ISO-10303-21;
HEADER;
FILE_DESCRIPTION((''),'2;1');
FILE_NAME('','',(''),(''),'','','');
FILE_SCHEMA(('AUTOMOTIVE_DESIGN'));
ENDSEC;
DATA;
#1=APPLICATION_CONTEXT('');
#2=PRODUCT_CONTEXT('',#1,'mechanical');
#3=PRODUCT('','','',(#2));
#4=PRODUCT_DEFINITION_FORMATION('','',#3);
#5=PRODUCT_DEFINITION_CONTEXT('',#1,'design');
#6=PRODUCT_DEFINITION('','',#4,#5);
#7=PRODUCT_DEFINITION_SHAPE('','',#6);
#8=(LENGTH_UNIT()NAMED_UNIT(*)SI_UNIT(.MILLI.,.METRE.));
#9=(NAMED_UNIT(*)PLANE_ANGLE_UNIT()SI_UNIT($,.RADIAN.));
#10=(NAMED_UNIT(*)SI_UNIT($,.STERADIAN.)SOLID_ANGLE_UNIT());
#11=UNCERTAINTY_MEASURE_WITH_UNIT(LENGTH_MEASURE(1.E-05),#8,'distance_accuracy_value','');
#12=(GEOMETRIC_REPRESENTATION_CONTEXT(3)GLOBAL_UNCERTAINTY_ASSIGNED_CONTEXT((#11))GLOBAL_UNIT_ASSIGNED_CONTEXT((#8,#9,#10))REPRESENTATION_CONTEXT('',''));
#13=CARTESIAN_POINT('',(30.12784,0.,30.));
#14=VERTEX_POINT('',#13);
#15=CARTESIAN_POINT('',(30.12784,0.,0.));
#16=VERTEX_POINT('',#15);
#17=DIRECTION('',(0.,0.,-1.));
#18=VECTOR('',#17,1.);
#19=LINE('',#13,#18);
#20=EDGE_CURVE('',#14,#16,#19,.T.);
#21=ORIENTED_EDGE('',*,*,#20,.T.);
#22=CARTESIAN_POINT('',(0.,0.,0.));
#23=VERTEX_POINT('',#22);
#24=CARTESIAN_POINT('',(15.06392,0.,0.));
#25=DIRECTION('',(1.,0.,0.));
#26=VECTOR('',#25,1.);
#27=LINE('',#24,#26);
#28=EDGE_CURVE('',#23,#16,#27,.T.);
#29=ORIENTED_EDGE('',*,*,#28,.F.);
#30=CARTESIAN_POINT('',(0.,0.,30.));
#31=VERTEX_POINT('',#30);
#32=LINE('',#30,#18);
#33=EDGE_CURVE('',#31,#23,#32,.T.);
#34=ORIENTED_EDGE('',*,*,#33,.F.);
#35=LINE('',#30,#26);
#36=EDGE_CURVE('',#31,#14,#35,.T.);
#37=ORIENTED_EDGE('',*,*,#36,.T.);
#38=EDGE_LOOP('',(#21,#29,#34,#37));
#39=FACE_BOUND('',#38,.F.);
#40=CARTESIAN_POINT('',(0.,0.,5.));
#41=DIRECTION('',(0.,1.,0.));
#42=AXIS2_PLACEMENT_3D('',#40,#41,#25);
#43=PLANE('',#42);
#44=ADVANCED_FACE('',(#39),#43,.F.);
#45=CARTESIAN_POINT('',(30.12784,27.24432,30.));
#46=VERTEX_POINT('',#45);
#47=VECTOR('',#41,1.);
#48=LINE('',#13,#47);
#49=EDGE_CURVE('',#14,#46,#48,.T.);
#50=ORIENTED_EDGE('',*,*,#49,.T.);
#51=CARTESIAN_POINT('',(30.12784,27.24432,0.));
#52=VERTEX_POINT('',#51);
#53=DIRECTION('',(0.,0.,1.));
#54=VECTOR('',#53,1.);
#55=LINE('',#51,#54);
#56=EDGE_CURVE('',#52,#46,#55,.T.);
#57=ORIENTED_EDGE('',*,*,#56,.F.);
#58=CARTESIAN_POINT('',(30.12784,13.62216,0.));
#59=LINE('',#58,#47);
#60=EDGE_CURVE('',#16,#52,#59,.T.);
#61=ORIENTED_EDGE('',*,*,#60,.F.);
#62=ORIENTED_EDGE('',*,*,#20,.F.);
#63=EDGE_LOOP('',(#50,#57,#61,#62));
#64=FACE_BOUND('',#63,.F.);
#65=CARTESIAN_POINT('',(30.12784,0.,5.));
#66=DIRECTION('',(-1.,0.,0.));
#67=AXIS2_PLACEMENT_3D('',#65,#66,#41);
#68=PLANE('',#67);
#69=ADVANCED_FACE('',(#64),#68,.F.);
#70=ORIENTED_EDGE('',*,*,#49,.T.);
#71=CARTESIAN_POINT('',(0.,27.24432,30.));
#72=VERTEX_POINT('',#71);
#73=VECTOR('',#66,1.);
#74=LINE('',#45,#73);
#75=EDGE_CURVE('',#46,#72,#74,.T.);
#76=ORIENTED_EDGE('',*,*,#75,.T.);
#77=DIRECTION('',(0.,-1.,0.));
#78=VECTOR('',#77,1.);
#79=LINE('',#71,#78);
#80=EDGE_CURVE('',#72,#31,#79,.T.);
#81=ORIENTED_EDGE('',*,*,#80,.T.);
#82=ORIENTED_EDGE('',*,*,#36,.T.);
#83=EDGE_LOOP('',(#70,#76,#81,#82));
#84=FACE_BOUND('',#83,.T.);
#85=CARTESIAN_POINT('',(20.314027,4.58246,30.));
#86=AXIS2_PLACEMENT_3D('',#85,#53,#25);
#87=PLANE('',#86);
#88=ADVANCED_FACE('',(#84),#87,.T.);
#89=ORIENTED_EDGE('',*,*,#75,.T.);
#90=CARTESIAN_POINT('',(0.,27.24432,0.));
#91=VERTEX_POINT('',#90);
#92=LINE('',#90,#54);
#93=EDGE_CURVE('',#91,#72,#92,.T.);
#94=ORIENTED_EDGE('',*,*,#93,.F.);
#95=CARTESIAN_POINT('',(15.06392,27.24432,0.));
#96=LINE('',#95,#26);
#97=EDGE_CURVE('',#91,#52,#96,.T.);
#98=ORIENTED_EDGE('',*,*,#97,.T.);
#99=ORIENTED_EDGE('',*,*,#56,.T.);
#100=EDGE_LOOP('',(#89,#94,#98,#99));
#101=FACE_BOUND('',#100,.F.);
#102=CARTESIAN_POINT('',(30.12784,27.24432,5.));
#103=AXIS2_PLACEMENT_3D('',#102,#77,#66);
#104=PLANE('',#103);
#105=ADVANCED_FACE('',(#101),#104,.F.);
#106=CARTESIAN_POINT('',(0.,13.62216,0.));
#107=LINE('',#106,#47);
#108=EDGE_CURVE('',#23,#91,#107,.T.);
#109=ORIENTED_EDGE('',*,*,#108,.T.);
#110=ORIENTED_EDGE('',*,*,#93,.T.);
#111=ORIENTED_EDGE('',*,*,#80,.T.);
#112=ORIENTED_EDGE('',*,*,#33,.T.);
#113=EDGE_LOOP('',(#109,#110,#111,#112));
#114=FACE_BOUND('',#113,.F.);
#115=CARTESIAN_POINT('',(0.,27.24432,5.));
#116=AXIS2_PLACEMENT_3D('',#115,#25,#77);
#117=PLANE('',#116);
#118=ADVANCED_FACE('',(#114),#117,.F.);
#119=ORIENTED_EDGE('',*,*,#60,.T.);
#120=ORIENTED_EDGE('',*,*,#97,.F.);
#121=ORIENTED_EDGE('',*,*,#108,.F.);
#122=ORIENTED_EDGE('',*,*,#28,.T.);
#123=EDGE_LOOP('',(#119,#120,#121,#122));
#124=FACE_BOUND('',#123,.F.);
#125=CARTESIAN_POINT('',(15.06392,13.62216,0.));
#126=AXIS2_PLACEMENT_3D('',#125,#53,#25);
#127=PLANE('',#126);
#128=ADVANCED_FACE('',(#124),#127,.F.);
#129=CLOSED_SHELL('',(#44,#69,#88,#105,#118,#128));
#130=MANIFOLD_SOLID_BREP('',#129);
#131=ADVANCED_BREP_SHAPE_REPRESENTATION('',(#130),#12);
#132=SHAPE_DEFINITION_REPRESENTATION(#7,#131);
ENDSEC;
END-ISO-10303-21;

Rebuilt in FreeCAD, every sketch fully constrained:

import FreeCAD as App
import Part
import Sketcher
from FreeCAD import Vector


def add_polygon(sketch, points):
    """Adds a closed chain of lines whose ends are joined by coincident constraints."""
    first, n = sketch.GeometryCount, len(points)
    for a, b in zip(points, points[1:] + points[:1]):
        sketch.addGeometry(Part.LineSegment(App.Vector(*a, 0), App.Vector(*b, 0)), False)
    for i in range(n):
        sketch.addConstraint(Sketcher.Constraint("Coincident", first + i, 2, first + (i + 1) % n, 1))

doc = App.newDocument("Part")
body = doc.addObject("PartDesign::Body", "Body")

# Sketch on XY plane
sketch1 = body.newObject("Sketcher::SketchObject", "Sketch")
sketch1.AttachmentSupport = (doc.getObject("XY_Plane"), [""])
sketch1.MapMode = "FlatFace"
add_polygon(sketch1, [(0, 27.24432), (0, 0), (30.12784, 0), (30.12784, 27.24432)])  # lines 0-3
sketch1.addConstraint([
    Sketcher.Constraint("Vertical", 0),
    Sketcher.Constraint("Horizontal", 1),
    Sketcher.Constraint("Vertical", 2),
    Sketcher.Constraint("Horizontal", 3),
    Sketcher.Constraint("Coincident", 0, 2, -1, 1),
    Sketcher.Constraint("DistanceX", 1, 1, 1, 2, 30.12784),
    Sketcher.Constraint("DistanceY", 0, 2, 0, 1, 27.24432),
])
pad1 = body.newObject("PartDesign::Pad", "Pad")
pad1.Profile = sketch1
pad1.Length = 5

# Sketch on XY plane
sketch2 = body.newObject("Sketcher::SketchObject", "Sketch001")
sketch2.AttachmentSupport = (doc.getObject("XY_Plane"), [""])
sketch2.MapMode = "FlatFace"
sketch2.AttachmentOffset = App.Placement(Vector(0, 0, 5), App.Rotation())
add_polygon(sketch2, [(30.12784, 0), (30.12784, 27.24432), (0, 27.24432), (0, 0)])  # lines 0-3
sketch2.addConstraint([
    Sketcher.Constraint("Vertical", 0),
    Sketcher.Constraint("Horizontal", 1),
    Sketcher.Constraint("Vertical", 2),
    Sketcher.Constraint("Horizontal", 3),
    Sketcher.Constraint("Coincident", 2, 2, -1, 1),
    Sketcher.Constraint("DistanceX", 1, 2, 1, 1, 30.12784),
    Sketcher.Constraint("DistanceY", 0, 1, 0, 2, 27.24432),
])
pad2 = body.newObject("PartDesign::Pad", "Pad001")
pad2.Profile = sketch2
pad2.Length = 25

doc.recompute()
